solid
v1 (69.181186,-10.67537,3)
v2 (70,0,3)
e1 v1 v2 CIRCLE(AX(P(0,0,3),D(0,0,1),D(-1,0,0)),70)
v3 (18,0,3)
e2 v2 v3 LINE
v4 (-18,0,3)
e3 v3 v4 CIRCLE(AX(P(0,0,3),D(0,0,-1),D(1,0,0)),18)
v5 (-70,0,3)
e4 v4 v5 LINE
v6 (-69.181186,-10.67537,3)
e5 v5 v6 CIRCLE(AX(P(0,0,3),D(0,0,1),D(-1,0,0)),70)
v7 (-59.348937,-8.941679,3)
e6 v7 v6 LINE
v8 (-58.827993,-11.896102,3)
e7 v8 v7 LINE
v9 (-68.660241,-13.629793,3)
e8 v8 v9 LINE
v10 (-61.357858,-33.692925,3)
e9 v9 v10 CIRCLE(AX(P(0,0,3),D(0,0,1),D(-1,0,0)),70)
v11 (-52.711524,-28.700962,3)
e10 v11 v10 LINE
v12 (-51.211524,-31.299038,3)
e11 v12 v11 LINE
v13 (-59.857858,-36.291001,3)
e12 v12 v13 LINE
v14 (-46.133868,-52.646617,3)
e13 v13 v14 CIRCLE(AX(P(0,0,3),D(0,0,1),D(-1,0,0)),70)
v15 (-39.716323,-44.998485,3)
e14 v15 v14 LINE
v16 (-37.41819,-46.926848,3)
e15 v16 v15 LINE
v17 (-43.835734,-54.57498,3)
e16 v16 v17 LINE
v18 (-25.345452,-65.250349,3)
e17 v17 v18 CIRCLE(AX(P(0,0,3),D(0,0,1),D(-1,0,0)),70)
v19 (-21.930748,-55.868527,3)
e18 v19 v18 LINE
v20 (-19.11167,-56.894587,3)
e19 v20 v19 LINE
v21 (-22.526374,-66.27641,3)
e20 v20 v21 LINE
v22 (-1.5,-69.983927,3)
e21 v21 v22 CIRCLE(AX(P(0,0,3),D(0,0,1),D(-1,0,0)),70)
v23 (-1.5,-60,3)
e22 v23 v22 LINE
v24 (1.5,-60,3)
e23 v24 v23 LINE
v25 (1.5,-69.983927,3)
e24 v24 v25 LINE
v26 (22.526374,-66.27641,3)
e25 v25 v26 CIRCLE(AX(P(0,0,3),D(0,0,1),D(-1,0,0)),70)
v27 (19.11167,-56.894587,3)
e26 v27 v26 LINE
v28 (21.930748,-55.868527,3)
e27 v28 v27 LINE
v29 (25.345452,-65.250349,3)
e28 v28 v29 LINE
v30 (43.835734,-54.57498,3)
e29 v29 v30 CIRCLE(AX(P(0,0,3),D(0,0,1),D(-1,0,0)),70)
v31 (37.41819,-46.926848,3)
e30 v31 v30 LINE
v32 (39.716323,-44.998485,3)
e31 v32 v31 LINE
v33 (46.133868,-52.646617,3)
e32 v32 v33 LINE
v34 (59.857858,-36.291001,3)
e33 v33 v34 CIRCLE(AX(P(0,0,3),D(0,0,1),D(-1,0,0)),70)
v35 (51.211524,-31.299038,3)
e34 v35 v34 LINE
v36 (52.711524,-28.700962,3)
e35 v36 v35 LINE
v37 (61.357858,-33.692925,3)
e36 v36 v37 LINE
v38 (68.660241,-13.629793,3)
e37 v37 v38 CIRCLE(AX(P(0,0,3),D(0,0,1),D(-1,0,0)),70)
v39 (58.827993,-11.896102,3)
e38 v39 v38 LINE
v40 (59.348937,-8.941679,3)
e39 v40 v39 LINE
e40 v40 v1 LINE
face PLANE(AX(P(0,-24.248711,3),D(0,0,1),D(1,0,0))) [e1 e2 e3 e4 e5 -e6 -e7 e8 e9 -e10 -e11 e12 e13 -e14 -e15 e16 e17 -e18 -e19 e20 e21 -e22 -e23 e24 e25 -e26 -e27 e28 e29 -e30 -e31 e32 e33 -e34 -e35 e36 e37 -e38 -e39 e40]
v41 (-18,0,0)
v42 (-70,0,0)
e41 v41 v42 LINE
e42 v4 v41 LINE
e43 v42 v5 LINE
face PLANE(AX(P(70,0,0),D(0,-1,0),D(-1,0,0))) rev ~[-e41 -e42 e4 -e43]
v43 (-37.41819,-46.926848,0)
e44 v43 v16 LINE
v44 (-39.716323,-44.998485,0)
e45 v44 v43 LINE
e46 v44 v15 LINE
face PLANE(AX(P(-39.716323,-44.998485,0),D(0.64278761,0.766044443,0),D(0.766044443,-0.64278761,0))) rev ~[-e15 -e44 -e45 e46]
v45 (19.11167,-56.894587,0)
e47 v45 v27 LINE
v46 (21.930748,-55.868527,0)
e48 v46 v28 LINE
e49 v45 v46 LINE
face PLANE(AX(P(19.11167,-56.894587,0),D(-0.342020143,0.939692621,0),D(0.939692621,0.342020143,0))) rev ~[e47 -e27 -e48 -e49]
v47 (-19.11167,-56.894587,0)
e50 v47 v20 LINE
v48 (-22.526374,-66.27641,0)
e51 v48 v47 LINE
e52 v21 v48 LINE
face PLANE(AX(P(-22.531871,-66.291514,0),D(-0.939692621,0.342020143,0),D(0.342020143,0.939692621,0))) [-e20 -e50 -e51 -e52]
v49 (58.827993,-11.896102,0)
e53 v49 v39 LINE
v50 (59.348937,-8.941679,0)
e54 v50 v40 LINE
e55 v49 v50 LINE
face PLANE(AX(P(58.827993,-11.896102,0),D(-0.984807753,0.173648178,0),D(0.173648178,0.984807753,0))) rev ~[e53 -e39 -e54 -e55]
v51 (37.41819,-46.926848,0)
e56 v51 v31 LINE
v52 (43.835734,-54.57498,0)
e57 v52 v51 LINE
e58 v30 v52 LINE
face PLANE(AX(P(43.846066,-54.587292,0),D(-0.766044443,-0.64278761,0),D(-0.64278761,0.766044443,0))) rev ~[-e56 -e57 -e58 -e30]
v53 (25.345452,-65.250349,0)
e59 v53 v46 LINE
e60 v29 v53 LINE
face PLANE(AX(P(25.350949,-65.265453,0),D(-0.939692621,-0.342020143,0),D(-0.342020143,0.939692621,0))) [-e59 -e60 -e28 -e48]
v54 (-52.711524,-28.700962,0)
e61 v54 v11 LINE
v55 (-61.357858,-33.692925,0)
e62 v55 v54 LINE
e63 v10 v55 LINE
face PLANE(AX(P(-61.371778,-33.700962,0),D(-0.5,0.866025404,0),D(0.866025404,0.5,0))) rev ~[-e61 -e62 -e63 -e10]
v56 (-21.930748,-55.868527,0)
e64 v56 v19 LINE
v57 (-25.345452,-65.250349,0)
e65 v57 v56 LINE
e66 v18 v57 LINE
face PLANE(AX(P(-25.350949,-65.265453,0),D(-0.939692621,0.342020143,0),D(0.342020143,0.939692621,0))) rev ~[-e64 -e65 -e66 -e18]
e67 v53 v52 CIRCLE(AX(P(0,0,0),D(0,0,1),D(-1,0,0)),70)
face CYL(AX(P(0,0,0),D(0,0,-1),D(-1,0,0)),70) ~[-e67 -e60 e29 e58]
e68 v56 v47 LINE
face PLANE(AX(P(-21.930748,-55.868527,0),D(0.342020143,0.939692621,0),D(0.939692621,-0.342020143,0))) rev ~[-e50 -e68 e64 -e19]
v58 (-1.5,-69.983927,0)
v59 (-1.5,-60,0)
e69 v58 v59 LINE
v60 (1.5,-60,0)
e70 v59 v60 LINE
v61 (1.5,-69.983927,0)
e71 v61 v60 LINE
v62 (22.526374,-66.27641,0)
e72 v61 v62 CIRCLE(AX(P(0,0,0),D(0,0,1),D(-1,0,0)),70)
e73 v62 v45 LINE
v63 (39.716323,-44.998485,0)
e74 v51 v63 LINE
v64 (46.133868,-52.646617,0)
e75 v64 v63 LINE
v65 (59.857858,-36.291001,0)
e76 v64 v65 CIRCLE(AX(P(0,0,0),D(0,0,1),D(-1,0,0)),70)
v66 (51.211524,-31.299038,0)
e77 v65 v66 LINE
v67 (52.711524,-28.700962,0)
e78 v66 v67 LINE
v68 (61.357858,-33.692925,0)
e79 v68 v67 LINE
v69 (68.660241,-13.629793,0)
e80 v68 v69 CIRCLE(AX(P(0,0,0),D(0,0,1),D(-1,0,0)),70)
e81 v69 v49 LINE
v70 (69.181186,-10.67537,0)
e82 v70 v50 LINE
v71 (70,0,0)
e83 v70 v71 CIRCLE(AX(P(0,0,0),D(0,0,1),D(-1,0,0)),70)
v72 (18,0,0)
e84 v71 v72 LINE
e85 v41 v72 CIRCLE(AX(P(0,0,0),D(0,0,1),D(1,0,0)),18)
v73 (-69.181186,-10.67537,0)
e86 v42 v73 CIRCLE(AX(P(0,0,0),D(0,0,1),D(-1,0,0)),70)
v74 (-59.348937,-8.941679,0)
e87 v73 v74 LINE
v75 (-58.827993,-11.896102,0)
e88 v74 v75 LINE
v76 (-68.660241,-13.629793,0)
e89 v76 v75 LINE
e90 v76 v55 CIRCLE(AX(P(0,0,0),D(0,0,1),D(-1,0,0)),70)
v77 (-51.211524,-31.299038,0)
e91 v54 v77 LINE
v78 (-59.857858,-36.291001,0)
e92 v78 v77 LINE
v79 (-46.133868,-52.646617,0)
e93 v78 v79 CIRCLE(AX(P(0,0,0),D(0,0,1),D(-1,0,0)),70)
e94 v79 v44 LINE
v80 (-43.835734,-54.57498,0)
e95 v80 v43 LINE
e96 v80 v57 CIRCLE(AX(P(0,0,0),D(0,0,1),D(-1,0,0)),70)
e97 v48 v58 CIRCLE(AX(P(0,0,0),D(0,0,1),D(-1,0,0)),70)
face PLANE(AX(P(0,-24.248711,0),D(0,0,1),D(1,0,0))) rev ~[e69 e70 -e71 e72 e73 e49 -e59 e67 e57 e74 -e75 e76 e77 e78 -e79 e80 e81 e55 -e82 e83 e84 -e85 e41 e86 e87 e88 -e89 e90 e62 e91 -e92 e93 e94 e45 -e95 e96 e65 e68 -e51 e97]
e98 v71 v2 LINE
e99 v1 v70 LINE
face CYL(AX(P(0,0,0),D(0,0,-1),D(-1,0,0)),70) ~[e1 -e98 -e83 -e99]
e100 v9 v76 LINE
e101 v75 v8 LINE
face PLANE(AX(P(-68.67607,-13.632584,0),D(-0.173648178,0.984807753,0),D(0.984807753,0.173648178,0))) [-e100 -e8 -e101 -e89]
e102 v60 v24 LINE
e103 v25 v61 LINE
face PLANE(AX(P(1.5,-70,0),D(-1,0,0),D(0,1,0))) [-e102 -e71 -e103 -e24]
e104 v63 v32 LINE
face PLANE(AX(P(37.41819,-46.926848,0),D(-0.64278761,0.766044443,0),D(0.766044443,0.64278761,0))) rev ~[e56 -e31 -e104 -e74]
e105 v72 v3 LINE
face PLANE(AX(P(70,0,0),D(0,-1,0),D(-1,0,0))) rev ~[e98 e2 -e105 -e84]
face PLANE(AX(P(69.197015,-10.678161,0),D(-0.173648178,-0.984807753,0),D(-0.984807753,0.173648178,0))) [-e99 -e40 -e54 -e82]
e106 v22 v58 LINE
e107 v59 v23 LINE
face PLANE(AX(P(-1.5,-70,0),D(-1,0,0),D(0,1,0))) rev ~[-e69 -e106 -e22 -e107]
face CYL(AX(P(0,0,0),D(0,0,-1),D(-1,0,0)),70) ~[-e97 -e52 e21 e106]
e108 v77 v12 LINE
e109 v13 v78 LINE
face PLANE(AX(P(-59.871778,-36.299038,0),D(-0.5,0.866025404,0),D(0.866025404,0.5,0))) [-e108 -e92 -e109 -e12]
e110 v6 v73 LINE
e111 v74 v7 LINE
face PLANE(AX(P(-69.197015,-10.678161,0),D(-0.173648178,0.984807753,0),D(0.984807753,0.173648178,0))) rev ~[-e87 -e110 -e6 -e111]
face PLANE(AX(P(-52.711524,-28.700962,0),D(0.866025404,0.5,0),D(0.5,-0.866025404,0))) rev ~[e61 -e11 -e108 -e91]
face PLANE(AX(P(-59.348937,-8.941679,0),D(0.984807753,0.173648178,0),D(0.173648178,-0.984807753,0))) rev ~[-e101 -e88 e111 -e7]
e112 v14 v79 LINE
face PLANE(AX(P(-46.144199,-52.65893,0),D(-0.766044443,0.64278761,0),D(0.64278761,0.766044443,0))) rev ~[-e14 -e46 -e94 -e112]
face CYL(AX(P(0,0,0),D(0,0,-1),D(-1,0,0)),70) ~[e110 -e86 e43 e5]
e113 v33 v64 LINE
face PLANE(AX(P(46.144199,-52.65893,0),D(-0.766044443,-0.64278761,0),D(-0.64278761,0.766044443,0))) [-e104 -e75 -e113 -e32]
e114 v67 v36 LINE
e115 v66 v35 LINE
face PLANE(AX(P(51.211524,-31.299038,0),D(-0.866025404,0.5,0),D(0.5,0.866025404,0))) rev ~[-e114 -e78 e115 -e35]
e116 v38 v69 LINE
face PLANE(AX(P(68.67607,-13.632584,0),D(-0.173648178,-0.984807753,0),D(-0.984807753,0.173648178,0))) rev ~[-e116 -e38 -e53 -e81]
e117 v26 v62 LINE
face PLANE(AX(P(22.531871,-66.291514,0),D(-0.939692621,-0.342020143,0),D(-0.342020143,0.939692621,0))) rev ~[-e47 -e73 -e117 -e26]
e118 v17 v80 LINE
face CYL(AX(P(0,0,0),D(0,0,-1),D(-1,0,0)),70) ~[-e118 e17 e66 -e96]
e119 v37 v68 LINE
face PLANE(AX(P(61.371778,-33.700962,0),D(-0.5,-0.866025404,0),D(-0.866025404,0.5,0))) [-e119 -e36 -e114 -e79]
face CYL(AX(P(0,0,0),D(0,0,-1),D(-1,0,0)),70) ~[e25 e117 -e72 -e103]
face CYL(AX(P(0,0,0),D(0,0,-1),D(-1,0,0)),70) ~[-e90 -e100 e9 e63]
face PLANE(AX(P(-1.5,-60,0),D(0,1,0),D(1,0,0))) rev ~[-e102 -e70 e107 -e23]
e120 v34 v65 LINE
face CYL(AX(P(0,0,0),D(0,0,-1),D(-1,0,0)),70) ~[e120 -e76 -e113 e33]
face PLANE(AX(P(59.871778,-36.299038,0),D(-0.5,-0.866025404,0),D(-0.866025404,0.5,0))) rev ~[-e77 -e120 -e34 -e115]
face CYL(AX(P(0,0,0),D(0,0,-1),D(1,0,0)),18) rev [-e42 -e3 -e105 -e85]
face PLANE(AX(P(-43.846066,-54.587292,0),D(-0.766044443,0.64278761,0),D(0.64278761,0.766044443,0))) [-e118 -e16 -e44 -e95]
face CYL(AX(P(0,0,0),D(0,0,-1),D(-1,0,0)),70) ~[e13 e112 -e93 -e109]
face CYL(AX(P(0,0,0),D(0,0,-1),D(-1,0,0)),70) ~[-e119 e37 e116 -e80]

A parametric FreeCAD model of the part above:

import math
import FreeCAD as App
import Part
import Sketcher

doc = App.newDocument("Part")
body = doc.addObject("PartDesign::Body", "Body")

sketch1 = doc.addObject("Sketcher::SketchObject", "Sketch")
body.addObject(sketch1)
sketch1.AttachmentSupport = (doc.XY_Plane, [""])
sketch1.MapMode = "FlatFace"
sketch1.addGeometry([
    Part.LineSegment(App.Vector(70, 0, 0), App.Vector(-70, 0, 0)),
    Part.ArcOfCircle(Part.Circle(App.Vector(0, 0, 0), App.Vector(0, 0, 1), 70), math.radians(180), math.radians(360)),
], False)
sketch1.addConstraint([
    Sketcher.Constraint("Coincident", 0, 1, 1, 2),
    Sketcher.Constraint("Coincident", 1, 1, 0, 2),
    Sketcher.Constraint("Horizontal", 0),
    Sketcher.Constraint("Coincident", 1, 3, -1, 1),
    Sketcher.Constraint("PointOnObject", 0, 1, -1),
    Sketcher.Constraint("Radius", 1, 70.0),
])
pad1 = doc.addObject("PartDesign::Pad", "Pad")
body.addObject(pad1)
pad1.Profile = sketch1
pad1.Length = 3

sketch2 = doc.addObject("Sketcher::SketchObject", "Sketch001")
body.addObject(sketch2)
sketch2.AttachmentSupport = (doc.XY_Plane, [""])
sketch2.MapMode = "FlatFace"
sketch2.addGeometry([
    Part.LineSegment(App.Vector(-1.5, -60, 0), App.Vector(-1.5, -70, 0)),
    Part.LineSegment(App.Vector(-1.5, -70, 0), App.Vector(1.5, -70, 0)),
    Part.LineSegment(App.Vector(1.5, -70, 0), App.Vector(1.5, -60, 0)),
    Part.LineSegment(App.Vector(1.5, -60, 0), App.Vector(-1.5, -60, 0)),
], False)
sketch2.addConstraint([
    Sketcher.Constraint("Coincident", 0, 2, 1, 1),
    Sketcher.Constraint("Coincident", 1, 2, 2, 1),
    Sketcher.Constraint("Coincident", 2, 2, 3, 1),
    Sketcher.Constraint("Coincident", 3, 2, 0, 1),
    Sketcher.Constraint("Vertical", 0),
    Sketcher.Constraint("Horizontal", 1),
    Sketcher.Constraint("Vertical", 2),
    Sketcher.Constraint("Horizontal", 3),
    Sketcher.Constraint("DistanceX", 1, 1, 1, 2, 3.0),
    Sketcher.Constraint("DistanceY", 0, 2, 0, 1, 10.0),
    Sketcher.Constraint("DistanceY", 0, 2, -1, 1, 70.0),
    Sketcher.Constraint("DistanceX", 0, 2, -1, 1, 1.5),
])
pocket1 = doc.addObject("PartDesign::Pocket", "Pocket")
body.addObject(pocket1)
pocket1.Profile = sketch2
pocket1.Type = "ThroughAll"
pocket1.Reversed = True
doc.recompute()

polarpattern = doc.addObject("PartDesign::PolarPattern", "PolarPattern")
body.addObject(polarpattern)
polarpattern.Originals = [pocket1]
polarpattern.Axis = (doc.Z_Axis, [""])
polarpattern.Angle = 80
polarpattern.Occurrences = 5
polarpattern.Reversed = True
body.Tip = polarpattern
doc.recompute()

polarpattern2 = doc.addObject("PartDesign::PolarPattern", "PolarPattern001")
body.addObject(polarpattern2)
polarpattern2.Originals = [pocket1]
polarpattern2.Axis = (doc.Z_Axis, [""])
polarpattern2.Angle = 80
polarpattern2.Occurrences = 5
body.Tip = polarpattern2

sketch3 = doc.addObject("Sketcher::SketchObject", "Sketch002")
body.addObject(sketch3)
sketch3.AttachmentSupport = (doc.XY_Plane, [""])
sketch3.MapMode = "FlatFace"
sketch3.addGeometry(Part.Circle(App.Vector(0, 0, 0), App.Vector(0, 0, 1), 18), False)
sketch3.addConstraint([
    Sketcher.Constraint("Coincident", 0, 3, -1, 1),
    Sketcher.Constraint("Diameter", 0, 36.0),
])
pocket2 = doc.addObject("PartDesign::Pocket", "Pocket001")
body.addObject(pocket2)
pocket2.Profile = sketch3
pocket2.Type = "ThroughAll"
pocket2.Reversed = True

doc.recompute()
